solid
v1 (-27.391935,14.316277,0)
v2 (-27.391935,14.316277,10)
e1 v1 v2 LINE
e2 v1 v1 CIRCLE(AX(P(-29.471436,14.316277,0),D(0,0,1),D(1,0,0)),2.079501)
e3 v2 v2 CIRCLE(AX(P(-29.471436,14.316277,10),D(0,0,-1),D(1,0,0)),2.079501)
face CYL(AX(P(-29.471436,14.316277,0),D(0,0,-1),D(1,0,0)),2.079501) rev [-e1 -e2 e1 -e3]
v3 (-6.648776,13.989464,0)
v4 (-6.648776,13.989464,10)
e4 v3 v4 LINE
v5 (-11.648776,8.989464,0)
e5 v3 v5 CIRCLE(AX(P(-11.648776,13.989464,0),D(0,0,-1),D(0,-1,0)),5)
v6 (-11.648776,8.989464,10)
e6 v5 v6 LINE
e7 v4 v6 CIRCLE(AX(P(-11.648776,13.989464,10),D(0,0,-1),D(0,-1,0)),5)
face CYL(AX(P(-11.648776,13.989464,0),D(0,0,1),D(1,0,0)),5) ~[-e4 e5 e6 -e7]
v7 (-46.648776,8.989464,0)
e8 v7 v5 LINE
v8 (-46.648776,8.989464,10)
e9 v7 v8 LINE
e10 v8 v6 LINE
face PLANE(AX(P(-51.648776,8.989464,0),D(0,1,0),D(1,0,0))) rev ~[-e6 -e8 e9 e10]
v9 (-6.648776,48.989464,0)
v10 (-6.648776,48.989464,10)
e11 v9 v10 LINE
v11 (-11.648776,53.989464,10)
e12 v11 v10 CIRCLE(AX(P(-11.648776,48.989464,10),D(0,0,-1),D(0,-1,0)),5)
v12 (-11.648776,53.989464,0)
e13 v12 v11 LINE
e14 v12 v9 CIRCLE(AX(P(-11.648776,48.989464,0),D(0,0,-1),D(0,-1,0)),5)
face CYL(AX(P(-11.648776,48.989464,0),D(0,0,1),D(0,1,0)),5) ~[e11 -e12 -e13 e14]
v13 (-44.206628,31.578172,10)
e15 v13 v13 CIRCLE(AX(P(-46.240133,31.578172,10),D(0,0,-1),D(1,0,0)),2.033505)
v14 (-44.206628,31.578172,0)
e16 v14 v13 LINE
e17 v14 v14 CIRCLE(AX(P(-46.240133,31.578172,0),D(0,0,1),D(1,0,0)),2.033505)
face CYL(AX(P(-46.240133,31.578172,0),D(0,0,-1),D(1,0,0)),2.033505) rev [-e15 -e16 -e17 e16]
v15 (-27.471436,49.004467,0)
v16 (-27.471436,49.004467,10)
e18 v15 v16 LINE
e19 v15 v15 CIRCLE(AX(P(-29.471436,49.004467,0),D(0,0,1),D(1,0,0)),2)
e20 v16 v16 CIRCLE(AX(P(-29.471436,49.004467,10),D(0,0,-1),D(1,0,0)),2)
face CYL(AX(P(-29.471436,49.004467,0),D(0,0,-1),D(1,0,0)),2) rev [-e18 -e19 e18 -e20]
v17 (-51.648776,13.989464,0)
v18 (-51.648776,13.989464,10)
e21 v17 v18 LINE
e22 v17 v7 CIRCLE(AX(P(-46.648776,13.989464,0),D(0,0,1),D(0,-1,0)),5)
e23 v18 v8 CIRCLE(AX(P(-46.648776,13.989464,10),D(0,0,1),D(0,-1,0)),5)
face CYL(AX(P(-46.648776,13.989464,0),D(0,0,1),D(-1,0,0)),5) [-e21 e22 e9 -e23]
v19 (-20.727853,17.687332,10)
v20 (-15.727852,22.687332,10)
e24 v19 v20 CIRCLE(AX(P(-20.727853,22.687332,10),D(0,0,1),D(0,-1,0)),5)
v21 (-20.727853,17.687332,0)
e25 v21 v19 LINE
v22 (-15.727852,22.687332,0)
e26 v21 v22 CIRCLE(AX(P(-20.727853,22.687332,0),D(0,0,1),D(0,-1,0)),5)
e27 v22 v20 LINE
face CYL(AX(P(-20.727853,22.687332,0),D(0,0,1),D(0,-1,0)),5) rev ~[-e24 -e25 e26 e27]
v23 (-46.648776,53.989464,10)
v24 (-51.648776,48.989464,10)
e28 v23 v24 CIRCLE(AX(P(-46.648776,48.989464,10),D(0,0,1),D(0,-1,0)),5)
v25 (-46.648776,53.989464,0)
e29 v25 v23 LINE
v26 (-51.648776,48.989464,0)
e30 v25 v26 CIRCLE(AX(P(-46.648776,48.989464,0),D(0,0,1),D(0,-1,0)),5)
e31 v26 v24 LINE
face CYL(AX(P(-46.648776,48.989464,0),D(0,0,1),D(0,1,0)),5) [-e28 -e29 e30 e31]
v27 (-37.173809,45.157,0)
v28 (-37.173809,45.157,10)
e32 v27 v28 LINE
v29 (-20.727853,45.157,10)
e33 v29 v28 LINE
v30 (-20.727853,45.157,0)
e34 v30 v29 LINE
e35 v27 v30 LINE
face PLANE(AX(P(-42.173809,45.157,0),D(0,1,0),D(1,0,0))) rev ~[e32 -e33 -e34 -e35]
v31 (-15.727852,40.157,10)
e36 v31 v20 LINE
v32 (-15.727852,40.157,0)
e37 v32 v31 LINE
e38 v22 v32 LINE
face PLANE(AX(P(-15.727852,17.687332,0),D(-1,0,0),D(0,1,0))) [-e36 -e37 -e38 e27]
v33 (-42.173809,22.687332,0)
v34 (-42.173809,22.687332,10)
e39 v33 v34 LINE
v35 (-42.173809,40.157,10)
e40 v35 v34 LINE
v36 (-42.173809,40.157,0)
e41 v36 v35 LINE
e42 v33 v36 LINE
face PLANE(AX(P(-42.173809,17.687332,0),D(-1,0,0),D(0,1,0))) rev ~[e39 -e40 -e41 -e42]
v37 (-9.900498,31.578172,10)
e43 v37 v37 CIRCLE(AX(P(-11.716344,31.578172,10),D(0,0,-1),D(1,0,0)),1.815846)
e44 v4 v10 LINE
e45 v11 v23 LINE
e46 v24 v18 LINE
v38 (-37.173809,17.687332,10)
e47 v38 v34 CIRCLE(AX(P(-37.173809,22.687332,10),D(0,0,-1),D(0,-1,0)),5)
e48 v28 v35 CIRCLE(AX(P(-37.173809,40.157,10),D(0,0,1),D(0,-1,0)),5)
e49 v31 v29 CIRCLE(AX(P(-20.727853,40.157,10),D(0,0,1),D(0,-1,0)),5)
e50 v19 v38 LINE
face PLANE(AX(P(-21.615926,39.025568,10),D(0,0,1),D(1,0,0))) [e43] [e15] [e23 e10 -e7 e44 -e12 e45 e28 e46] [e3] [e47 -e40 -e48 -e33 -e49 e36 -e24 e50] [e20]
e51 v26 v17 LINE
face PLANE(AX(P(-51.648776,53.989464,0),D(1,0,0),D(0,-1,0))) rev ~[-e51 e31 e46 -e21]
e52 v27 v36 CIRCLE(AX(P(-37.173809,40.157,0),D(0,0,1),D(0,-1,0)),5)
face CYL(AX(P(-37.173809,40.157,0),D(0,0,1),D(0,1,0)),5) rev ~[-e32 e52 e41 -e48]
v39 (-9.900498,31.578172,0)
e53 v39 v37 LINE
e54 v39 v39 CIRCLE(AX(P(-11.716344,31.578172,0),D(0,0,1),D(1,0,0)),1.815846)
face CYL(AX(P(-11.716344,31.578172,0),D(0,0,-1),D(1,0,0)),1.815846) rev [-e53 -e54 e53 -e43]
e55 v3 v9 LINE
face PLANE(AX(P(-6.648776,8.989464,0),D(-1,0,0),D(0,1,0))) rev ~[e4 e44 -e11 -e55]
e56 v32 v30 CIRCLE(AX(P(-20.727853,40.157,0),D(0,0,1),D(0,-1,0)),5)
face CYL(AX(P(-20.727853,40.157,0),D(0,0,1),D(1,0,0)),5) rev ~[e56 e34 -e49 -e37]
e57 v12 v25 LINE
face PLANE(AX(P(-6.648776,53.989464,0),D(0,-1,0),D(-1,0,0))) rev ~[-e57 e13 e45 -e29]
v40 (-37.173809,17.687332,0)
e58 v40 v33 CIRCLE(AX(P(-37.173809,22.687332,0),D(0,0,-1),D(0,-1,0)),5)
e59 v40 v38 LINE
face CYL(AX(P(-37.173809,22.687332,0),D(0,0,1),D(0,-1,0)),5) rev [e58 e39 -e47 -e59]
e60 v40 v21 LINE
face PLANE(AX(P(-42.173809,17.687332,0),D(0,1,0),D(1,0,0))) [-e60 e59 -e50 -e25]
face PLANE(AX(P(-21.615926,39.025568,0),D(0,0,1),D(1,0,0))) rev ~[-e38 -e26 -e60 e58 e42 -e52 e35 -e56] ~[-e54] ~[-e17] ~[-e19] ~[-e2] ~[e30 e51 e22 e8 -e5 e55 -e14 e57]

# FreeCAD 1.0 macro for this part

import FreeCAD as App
import Part
import Sketcher


def edges_at(feature, points):
    """Names of the edges that pass closest to the given points."""
    edges = feature.Shape.Edges
    near = lambda p: min(range(len(edges)), key=lambda i: edges[i].distToShape(Part.Vertex(*p))[0])
    return sorted({f"Edge{near(p) + 1}" for p in points})


def add_polygon(sketch, points):
    """Adds a closed chain of lines whose ends are joined by coincident constraints."""
    first, n = sketch.GeometryCount, len(points)
    for a, b in zip(points, points[1:] + points[:1]):
        sketch.addGeometry(Part.LineSegment(App.Vector(*a, 0), App.Vector(*b, 0)), False)
    for i in range(n):
        sketch.addConstraint(Sketcher.Constraint("Coincident", first + i, 2, first + (i + 1) % n, 1))

doc = App.newDocument("Part")
body = doc.addObject("PartDesign::Body", "Body")

# Sketch on XY plane
sketch1 = body.newObject("Sketcher::SketchObject", "Sketch")
sketch1.AttachmentSupport = (doc.getObject("XY_Plane"), [""])
sketch1.MapMode = "FlatFace"
add_polygon(sketch1, [(-7, 54), (-52, 54), (-52, 9), (-7, 9)])  # lines 0-3
sketch1.addConstraint([
    Sketcher.Constraint("Horizontal", 0),
    Sketcher.Constraint("Vertical", 1),
    Sketcher.Constraint("Horizontal", 2),
    Sketcher.Constraint("Vertical", 3),
    Sketcher.Constraint("Equal", 2, 1),
    Sketcher.Constraint("DistanceX", 0, 2, 0, 1, 45.0),
    Sketcher.Constraint("DistanceX", 0, 2, -1, 1, 51.648776),
    Sketcher.Constraint("DistanceY", -1, 1, 0, 2, 53.989464),
])
pad1 = body.newObject("PartDesign::Pad", "Pad")
pad1.Profile = sketch1
pad1.Length = 10

# Sketch on XY plane
sketch2 = body.newObject("Sketcher::SketchObject", "Sketch001")
sketch2.AttachmentSupport = (doc.getObject("XY_Plane"), [""])
sketch2.MapMode = "FlatFace"
add_polygon(sketch2, [(-42, 45), (-42, 18), (-16, 18), (-16, 45)])  # lines 0-3
sketch2.addConstraint([
    Sketcher.Constraint("Vertical", 0),
    Sketcher.Constraint("Horizontal", 1),
    Sketcher.Constraint("Vertical", 2),
    Sketcher.Constraint("Horizontal", 3),
    Sketcher.Constraint("DistanceY", -1, 1, 2, 2, 45.157),
    Sketcher.Constraint("DistanceX", 1, 1, 1, 2, 26.445957),
    Sketcher.Constraint("DistanceY", 0, 2, 0, 1, 27.469668),
    Sketcher.Constraint("DistanceX", 0, 2, -1, 1, 42.173809),
])
pocket1 = body.newObject("PartDesign::Pocket", "Pocket")
pocket1.Profile = sketch2
pocket1.Length = 25
pocket1.Reversed = True
doc.recompute()

fillet = body.newObject("PartDesign::Fillet", "Fillet")
fillet.Base = (pocket1, edges_at(pocket1, [
    (-51.649, 8.989, 5),
    (-51.649, 53.989, 5),
    (-6.649, 53.989, 5),
    (-6.649, 8.989, 5),
]))
fillet.Radius = 5
doc.recompute()

fillet2 = body.newObject("PartDesign::Fillet", "Fillet001")
fillet2.Base = (fillet, edges_at(fillet, [
    (-42.174, 17.687, 5),
    (-42.174, 45.157, 5),
    (-15.728, 45.157, 5),
    (-15.728, 17.687, 5),
]))
fillet2.Radius = 5

# Sketch on XY plane
sketch3 = body.newObject("Sketcher::SketchObject", "Sketch002")
sketch3.AttachmentSupport = (doc.getObject("XY_Plane"), [""])
sketch3.MapMode = "FlatFace"
sketch3.addGeometry([
    Part.Circle(App.Vector(-29.5, 49, 0), App.Vector(0, 0, 1), 2),
    Part.Circle(App.Vector(-46.2, 31.6, 0), App.Vector(0, 0, 1), 2),
    Part.Circle(App.Vector(-29.5, 14.3, 0), App.Vector(0, 0, 1), 2.1),
    Part.Circle(App.Vector(-11.7, 31.6, 0), App.Vector(0, 0, 1), 1.8),
], False)
sketch3.addConstraint([
    Sketcher.Constraint("Horizontal", 1, 3, 3, 3),
    Sketcher.Constraint("Vertical", 0, 3, 2, 3),
    Sketcher.Constraint("Diameter", 0, 4.0),
    Sketcher.Constraint("Diameter", 1, 4.06701),
    Sketcher.Constraint("Diameter", 2, 4.159002),
    Sketcher.Constraint("Diameter", 3, 3.631692),
    Sketcher.Constraint("DistanceY", -1, 1, 1, 3, 31.578172),
    Sketcher.Constraint("DistanceY", 2, 3, 0, 3, 34.68819),
    Sketcher.Constraint("DistanceX", 1, 3, 3, 3, 34.523789),
    Sketcher.Constraint("DistanceX", 0, 3, -1, 1, 29.471436),
    Sketcher.Constraint("DistanceY", -1, 1, 0, 3, 49.004467),
    Sketcher.Constraint("DistanceX", 1, 3, -1, 1, 46.240133),
])
pocket2 = body.newObject("PartDesign::Pocket", "Pocket001")
pocket2.Profile = sketch3
pocket2.Length = 25
pocket2.Reversed = True

doc.recompute()
